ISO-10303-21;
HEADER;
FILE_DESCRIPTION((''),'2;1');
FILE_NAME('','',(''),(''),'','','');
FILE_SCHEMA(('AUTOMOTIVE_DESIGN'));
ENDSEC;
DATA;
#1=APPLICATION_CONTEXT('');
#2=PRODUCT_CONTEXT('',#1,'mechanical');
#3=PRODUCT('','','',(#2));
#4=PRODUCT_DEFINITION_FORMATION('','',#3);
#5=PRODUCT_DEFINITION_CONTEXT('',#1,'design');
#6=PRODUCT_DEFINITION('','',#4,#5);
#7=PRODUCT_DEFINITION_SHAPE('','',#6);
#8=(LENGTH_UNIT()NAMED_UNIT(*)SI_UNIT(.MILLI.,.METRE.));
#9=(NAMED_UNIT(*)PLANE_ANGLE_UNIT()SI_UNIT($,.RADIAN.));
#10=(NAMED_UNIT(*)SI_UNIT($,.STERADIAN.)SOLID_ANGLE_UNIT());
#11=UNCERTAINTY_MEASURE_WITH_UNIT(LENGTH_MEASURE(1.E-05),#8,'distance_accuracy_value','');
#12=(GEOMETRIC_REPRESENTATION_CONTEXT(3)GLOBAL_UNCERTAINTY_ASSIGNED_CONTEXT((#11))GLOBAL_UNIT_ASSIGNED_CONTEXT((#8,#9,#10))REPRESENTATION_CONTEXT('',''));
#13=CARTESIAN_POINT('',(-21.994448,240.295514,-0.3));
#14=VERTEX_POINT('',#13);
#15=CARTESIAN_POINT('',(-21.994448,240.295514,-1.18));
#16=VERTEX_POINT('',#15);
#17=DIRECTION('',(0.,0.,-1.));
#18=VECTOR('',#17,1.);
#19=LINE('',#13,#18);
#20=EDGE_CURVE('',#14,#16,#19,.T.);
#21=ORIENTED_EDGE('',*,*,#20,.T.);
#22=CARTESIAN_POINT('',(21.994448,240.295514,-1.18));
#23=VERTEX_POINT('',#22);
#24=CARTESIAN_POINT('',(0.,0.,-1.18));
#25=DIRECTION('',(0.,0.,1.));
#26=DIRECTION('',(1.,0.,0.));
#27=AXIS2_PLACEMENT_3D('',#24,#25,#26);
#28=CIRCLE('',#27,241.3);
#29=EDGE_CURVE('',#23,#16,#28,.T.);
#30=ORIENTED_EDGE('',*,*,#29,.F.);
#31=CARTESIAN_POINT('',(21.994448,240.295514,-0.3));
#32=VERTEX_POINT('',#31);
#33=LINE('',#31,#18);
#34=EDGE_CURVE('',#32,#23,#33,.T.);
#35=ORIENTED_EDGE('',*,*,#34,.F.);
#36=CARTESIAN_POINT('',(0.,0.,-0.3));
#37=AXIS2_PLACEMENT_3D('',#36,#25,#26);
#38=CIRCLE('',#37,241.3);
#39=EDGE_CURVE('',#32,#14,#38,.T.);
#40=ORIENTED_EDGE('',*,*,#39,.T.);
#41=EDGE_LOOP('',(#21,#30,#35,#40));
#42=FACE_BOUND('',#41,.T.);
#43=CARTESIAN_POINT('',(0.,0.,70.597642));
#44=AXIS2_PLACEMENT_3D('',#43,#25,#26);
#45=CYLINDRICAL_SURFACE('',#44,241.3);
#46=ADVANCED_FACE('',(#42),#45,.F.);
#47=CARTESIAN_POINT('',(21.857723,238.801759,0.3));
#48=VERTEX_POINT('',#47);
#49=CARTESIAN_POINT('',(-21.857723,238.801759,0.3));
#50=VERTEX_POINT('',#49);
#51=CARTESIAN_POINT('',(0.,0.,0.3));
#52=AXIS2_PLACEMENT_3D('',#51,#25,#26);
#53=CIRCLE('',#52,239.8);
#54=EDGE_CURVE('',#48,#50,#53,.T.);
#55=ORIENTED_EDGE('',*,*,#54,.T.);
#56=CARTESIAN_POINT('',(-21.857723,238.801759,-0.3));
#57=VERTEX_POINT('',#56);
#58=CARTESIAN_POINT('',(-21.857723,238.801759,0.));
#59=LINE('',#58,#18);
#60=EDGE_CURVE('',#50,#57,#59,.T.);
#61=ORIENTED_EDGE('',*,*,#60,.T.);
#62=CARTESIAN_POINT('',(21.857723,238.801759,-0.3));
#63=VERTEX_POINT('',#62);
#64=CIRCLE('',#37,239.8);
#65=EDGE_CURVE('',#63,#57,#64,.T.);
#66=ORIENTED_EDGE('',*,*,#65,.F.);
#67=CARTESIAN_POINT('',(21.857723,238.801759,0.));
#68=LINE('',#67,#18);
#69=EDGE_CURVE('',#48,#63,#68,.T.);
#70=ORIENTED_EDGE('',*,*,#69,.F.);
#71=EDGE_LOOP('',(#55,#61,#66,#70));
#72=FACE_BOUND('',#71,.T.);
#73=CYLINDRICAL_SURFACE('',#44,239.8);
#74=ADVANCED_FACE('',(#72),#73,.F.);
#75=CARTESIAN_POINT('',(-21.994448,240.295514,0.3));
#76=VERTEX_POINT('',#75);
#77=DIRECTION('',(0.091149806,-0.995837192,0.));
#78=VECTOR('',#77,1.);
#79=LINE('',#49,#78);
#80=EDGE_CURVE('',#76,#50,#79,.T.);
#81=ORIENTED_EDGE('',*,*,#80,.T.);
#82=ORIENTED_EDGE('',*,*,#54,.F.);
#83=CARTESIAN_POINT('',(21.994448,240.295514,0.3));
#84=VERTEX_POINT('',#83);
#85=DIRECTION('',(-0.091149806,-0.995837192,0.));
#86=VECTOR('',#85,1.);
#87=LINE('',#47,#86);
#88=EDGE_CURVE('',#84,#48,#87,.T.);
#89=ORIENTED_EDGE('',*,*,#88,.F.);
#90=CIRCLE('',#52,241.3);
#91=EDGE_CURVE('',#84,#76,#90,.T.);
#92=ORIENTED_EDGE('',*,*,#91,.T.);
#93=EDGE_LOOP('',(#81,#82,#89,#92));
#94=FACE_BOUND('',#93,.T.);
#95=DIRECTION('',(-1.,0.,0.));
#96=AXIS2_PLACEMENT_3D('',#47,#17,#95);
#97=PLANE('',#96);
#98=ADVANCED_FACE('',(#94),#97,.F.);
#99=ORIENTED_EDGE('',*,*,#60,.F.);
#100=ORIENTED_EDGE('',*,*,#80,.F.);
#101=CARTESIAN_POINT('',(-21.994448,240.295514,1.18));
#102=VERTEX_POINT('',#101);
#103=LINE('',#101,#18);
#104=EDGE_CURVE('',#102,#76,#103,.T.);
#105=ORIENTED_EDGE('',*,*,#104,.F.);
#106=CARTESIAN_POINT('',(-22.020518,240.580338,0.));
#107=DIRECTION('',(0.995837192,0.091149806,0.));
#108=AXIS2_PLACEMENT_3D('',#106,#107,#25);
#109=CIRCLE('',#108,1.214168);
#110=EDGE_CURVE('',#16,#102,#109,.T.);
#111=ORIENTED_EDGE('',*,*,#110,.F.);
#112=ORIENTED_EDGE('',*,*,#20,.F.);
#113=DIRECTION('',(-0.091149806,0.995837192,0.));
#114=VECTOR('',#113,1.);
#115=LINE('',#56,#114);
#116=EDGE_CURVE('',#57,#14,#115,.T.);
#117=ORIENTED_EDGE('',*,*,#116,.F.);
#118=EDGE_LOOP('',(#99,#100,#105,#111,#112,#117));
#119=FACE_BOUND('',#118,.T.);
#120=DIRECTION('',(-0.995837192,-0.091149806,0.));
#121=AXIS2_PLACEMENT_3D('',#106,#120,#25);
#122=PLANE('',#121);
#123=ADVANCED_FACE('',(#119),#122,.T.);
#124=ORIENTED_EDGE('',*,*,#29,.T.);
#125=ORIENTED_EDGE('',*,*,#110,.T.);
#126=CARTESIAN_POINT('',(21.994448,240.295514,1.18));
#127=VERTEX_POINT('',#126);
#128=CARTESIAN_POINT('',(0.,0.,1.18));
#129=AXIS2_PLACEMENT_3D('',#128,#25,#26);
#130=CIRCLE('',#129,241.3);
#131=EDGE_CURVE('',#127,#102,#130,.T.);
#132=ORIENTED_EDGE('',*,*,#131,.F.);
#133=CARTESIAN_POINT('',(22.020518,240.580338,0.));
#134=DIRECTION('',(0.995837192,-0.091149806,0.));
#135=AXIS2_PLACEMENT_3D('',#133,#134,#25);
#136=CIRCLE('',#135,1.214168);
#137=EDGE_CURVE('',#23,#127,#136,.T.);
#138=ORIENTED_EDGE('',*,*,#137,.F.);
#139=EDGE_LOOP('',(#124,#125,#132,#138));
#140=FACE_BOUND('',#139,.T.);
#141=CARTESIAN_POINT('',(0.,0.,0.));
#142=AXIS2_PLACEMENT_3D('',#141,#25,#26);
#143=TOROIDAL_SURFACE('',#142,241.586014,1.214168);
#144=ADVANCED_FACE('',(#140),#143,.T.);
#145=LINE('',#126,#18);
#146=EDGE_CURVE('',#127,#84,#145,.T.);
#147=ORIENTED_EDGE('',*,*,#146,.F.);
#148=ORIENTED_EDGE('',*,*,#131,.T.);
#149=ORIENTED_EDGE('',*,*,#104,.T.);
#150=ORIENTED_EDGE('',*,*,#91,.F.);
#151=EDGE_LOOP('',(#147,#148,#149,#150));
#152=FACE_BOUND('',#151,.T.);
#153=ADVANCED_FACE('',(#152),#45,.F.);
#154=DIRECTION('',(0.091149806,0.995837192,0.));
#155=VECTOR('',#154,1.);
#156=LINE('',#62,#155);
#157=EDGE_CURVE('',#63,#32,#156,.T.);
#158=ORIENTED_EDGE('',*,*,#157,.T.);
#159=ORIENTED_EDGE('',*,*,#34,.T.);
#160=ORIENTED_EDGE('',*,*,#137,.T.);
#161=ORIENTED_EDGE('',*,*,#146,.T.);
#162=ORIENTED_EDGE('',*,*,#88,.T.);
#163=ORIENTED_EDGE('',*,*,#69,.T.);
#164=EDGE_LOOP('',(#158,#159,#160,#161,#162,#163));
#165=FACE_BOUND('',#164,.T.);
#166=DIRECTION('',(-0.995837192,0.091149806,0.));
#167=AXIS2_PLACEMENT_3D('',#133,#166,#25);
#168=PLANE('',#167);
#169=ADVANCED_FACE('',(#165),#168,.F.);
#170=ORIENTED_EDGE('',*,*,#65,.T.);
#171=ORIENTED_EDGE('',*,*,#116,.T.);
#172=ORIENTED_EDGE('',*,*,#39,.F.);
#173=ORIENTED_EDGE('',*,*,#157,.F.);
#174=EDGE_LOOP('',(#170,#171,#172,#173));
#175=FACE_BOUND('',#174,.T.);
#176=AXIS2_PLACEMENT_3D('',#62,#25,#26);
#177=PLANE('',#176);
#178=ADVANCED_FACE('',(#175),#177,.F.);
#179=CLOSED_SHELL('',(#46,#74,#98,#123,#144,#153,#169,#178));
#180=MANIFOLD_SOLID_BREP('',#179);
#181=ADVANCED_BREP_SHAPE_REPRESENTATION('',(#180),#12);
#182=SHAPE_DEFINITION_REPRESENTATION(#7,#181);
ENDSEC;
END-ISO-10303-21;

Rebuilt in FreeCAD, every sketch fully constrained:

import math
import FreeCAD as App
import Part
import Sketcher

V = App.Vector

doc = App.newDocument("Part")
body = doc.addObject("PartDesign::Body", "Body")

sketch1 = doc.addObject("Sketcher::SketchObject", "Sketch")
body.addObject(sketch1)
sketch1.AttachmentSupport = (doc.YZ_Plane, [""])
sketch1.MapMode = "FlatFace"
sketch1.addGeometry([
    Part.LineSegment(V(239.8, -0.3, 0), V(241.3, -0.3, 0)),
    Part.LineSegment(V(241.3, -0.3, 0), V(241.3, -1.18, 0)),
    Part.ArcOfCircle(Part.Circle(V(241.586014, 0, 0), V(0, 0, 1), 1.214168), math.radians(-103.624857), math.radians(103.624857)),
    Part.LineSegment(V(241.3, 1.18, 0), V(241.3, 0.3, 0)),
    Part.LineSegment(V(241.3, 0.3, 0), V(239.8, 0.3, 0)),
    Part.LineSegment(V(239.8, 0.3, 0), V(239.8, -0.3, 0)),
], False)
sketch1.addConstraint([
    Sketcher.Constraint("Coincident", 0, 2, 1, 1),
    Sketcher.Constraint("Coincident", 1, 2, 2, 1),
    Sketcher.Constraint("Coincident", 2, 2, 3, 1),
    Sketcher.Constraint("Coincident", 3, 2, 4, 1),
    Sketcher.Constraint("Coincident", 4, 2, 5, 1),
    Sketcher.Constraint("Coincident", 5, 2, 0, 1),
    Sketcher.Constraint("Horizontal", 0),
    Sketcher.Constraint("Vertical", 1),
    Sketcher.Constraint("Vertical", 3),
    Sketcher.Constraint("Horizontal", 4),
    Sketcher.Constraint("Vertical", 5),
    Sketcher.Constraint("Symmetric", 1, 2, 2, 2, -1),
    Sketcher.Constraint("Equal", 1, 3),
    Sketcher.Constraint("DistanceX", 0, 1, 0, 2, 1.5),
    Sketcher.Constraint("DistanceY", 5, 2, 5, 1, 0.6),
    Sketcher.Constraint("DistanceY", 1, 2, 1, 1, 0.88),
    Sketcher.Constraint("DistanceX", -1, 1, 0, 2, 241.3),
    Sketcher.Constraint("Radius", 2, 1.214168),
])
revolution = doc.addObject("PartDesign::Revolution", "Revolution")
body.addObject(revolution)
revolution.Profile = sketch1
revolution.ReferenceAxis = (sketch1, ["V_Axis"])
revolution.Angle = 5.229758
revolution.Reversed = True

sketch2 = doc.addObject("Sketcher::SketchObject", "Sketch001")
body.addObject(sketch2)
sketch2.AttachmentSupport = (doc.YZ_Plane, [""])
sketch2.MapMode = "FlatFace"
sketch2.addGeometry([
    Part.LineSegment(V(239.8, -0.3, 0), V(241.3, -0.3, 0)),
    Part.LineSegment(V(241.3, -0.3, 0), V(241.3, -1.18, 0)),
    Part.ArcOfCircle(Part.Circle(V(241.586014, 0, 0), V(0, 0, 1), 1.214168), math.radians(-103.624857), math.radians(103.624857)),
    Part.LineSegment(V(241.3, 1.18, 0), V(241.3, 0.3, 0)),
    Part.LineSegment(V(241.3, 0.3, 0), V(239.8, 0.3, 0)),
    Part.LineSegment(V(239.8, 0.3, 0), V(239.8, -0.3, 0)),
], False)
sketch2.addConstraint([
    Sketcher.Constraint("Coincident", 0, 2, 1, 1),
    Sketcher.Constraint("Coincident", 1, 2, 2, 1),
    Sketcher.Constraint("Coincident", 2, 2, 3, 1),
    Sketcher.Constraint("Coincident", 3, 2, 4, 1),
    Sketcher.Constraint("Coincident", 4, 2, 5, 1),
    Sketcher.Constraint("Coincident", 5, 2, 0, 1),
    Sketcher.Constraint("Horizontal", 0),
    Sketcher.Constraint("Vertical", 1),
    Sketcher.Constraint("Vertical", 3),
    Sketcher.Constraint("Horizontal", 4),
    Sketcher.Constraint("Vertical", 5),
    Sketcher.Constraint("Symmetric", 1, 2, 2, 2, -1),
    Sketcher.Constraint("Equal", 1, 3),
    Sketcher.Constraint("DistanceX", 0, 1, 0, 2, 1.5),
    Sketcher.Constraint("DistanceY", 5, 2, 5, 1, 0.6),
    Sketcher.Constraint("DistanceY", 1, 2, 1, 1, 0.88),
    Sketcher.Constraint("DistanceX", -1, 1, 0, 2, 241.3),
    Sketcher.Constraint("Radius", 2, 1.214168),
])
revolution2 = doc.addObject("PartDesign::Revolution", "Revolution001")
body.addObject(revolution2)
revolution2.Profile = sketch2
revolution2.ReferenceAxis = (sketch2, ["V_Axis"])
revolution2.Angle = 5.229758

doc.recompute()
